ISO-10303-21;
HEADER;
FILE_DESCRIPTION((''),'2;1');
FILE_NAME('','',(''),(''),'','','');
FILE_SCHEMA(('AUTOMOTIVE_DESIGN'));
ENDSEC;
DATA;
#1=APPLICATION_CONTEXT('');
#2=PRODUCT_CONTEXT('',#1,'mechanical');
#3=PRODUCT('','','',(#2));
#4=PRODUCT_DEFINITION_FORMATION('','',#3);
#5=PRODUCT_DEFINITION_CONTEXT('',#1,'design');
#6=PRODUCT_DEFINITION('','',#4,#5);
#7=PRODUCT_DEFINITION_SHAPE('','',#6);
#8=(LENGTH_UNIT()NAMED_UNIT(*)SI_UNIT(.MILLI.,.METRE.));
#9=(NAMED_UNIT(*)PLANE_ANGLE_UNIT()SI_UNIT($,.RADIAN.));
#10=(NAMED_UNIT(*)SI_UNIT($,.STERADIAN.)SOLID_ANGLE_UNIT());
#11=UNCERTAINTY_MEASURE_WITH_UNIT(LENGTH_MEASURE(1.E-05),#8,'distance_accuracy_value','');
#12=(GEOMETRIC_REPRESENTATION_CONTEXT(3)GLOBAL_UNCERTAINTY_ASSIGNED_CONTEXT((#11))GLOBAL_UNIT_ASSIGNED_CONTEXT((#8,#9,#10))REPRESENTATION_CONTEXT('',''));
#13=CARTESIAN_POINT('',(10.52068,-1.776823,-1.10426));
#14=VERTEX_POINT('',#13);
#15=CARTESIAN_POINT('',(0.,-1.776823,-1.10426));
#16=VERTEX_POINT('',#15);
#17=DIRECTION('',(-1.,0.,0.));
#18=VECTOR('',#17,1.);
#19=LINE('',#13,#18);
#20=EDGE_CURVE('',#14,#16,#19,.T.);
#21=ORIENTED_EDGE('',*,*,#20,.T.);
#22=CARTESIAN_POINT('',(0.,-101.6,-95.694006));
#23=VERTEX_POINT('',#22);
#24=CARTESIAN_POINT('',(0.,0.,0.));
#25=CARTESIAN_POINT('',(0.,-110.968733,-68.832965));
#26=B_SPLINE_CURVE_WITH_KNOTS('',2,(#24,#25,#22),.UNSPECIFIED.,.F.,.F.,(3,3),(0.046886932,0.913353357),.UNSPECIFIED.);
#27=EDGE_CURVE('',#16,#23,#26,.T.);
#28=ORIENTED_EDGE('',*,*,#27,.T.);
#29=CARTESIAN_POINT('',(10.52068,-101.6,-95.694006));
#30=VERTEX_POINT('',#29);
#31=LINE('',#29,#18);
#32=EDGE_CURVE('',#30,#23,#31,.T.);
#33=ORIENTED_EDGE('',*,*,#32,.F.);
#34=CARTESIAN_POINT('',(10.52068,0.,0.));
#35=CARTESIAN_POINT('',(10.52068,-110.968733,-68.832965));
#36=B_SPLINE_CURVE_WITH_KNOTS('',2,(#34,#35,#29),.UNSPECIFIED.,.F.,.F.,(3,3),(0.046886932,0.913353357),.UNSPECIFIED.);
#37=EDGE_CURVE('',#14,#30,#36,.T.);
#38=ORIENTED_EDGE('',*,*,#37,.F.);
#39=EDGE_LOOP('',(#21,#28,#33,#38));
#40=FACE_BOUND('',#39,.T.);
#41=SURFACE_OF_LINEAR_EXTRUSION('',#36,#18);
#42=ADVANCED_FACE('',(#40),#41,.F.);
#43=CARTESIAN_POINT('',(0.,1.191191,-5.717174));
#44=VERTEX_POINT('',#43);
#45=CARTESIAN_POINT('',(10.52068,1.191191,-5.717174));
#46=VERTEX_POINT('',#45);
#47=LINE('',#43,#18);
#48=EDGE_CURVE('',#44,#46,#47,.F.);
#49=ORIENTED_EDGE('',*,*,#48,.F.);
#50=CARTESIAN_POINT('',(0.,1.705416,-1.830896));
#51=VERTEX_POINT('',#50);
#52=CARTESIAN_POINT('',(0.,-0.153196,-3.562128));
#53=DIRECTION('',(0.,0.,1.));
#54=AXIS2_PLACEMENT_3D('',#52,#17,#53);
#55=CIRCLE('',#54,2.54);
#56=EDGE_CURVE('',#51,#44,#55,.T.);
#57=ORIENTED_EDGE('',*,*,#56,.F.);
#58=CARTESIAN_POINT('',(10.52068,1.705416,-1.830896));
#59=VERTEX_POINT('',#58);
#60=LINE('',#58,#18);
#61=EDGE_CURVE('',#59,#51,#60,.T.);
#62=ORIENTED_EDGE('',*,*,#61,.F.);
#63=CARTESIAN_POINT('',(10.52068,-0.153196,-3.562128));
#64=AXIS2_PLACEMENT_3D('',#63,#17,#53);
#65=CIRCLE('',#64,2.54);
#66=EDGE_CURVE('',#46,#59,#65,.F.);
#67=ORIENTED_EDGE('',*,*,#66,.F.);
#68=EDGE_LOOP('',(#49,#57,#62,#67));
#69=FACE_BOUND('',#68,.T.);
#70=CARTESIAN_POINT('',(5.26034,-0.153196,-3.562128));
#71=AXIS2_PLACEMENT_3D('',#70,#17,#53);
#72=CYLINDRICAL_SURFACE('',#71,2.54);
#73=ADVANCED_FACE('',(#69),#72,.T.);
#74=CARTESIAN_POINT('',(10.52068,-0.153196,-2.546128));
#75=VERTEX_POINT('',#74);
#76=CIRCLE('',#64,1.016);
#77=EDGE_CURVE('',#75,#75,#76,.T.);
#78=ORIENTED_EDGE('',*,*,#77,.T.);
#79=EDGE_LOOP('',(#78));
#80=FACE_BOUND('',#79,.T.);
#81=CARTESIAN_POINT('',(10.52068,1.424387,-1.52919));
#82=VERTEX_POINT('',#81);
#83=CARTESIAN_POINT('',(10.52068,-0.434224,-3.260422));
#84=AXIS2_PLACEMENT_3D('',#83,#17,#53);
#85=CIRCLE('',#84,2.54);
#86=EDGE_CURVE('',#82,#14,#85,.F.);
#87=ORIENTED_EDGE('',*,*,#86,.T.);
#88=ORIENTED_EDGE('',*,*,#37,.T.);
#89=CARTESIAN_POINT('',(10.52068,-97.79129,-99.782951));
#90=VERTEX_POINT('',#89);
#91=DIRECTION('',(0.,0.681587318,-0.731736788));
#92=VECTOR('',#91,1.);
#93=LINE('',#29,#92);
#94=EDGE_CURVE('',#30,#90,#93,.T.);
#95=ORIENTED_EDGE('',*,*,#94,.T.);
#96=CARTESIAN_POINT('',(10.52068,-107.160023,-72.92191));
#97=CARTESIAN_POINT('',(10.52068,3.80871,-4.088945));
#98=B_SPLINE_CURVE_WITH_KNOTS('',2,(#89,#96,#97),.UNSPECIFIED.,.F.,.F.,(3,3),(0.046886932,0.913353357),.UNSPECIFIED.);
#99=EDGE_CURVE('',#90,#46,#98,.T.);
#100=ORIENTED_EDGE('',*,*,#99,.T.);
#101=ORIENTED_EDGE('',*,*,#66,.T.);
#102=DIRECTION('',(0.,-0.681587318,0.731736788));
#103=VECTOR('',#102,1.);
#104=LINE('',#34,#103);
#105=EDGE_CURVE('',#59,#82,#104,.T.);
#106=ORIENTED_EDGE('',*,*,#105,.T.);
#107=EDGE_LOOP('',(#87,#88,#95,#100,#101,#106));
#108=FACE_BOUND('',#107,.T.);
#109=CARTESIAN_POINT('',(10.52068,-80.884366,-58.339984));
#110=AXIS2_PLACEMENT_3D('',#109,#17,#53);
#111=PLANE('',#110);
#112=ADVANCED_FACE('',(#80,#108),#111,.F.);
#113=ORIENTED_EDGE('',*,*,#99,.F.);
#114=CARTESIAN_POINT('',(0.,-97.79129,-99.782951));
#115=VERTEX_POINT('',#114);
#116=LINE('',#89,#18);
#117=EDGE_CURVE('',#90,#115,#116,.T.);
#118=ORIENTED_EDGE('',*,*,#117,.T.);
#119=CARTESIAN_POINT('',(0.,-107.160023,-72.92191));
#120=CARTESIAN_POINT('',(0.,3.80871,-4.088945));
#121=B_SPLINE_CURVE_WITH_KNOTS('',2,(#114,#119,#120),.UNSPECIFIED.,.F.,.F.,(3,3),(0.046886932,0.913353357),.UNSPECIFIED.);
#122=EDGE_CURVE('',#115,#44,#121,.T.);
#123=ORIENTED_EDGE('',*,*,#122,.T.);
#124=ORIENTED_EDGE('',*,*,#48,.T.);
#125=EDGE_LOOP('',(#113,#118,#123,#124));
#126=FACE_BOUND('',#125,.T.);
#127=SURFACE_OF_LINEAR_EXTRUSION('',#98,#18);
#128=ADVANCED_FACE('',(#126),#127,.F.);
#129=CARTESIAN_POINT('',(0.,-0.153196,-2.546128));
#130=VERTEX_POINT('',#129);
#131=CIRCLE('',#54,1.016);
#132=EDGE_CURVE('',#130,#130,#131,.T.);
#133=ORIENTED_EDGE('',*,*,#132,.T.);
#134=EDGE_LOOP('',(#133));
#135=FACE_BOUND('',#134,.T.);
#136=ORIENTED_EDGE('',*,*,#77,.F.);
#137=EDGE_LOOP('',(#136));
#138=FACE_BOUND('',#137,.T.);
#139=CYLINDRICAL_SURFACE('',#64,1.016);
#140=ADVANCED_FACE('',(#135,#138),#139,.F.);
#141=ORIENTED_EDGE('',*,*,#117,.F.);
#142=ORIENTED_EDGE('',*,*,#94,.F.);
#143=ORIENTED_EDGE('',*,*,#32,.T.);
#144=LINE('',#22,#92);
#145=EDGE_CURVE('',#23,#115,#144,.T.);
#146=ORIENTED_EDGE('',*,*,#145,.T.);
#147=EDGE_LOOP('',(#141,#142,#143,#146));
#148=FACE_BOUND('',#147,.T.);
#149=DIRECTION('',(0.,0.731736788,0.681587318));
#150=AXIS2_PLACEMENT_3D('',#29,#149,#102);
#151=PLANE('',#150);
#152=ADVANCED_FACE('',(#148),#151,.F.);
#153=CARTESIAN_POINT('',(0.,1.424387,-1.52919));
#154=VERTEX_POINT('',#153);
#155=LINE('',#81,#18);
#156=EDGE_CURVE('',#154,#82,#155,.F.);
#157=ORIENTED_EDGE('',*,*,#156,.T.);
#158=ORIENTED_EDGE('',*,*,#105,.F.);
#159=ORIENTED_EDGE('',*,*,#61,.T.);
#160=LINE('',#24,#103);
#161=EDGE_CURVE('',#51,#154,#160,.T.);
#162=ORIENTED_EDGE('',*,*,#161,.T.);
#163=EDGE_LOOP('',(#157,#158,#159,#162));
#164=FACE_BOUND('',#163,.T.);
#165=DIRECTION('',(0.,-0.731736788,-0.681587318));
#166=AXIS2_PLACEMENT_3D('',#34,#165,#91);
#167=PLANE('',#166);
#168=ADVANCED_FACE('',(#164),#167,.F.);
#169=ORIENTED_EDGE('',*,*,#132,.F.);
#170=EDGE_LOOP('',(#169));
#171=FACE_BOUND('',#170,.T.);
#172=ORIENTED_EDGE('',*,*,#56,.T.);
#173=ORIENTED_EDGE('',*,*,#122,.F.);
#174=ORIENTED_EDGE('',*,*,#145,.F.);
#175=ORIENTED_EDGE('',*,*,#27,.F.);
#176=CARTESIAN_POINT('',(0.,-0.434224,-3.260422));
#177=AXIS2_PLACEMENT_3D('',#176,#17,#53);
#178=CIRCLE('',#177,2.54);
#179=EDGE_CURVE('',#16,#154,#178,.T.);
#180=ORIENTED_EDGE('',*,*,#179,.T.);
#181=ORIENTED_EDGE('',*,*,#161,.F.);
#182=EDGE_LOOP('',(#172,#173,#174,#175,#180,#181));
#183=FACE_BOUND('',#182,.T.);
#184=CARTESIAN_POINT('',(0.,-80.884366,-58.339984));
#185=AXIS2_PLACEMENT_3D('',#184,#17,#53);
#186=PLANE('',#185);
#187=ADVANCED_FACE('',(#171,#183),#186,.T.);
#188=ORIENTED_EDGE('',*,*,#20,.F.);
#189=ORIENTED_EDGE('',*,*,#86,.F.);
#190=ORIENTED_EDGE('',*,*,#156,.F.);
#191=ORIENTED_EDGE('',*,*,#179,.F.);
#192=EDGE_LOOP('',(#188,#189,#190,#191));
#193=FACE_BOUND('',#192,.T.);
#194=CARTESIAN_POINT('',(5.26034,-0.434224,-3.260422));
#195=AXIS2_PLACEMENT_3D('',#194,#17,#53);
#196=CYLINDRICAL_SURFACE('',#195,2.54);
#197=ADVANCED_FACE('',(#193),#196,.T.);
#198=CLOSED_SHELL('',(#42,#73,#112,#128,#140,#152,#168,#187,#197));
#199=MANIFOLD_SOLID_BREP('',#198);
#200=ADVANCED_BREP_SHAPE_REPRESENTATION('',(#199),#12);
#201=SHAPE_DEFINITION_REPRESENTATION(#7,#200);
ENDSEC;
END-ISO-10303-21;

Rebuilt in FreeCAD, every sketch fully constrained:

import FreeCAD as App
import Part
import Sketcher

V = App.Vector
Q = App.Units.Quantity


def edges_at(feature, points):
    """Names of the edges that pass closest to the given points."""
    edges = feature.Shape.Edges
    near = lambda p: min(range(len(edges)), key=lambda i: edges[i].distToShape(Part.Vertex(*p))[0])
    return sorted({f"Edge{near(p) + 1}" for p in points})

doc = App.newDocument("Part")
body = doc.addObject("PartDesign::Body", "Body")

sketch1 = doc.addObject("Sketcher::SketchObject", "Sketch")
body.addObject(sketch1)
sketch1.AttachmentSupport = (doc.YZ_Plane, [""])
sketch1.MapMode = "FlatFace"
sketch1.addGeometry([
    Part.LineSegment(V(3.80871, -4.088945, 0), V(0, 0, 0)),
    Part.BSplineCurve([V(0, 0, 0), V(-110.968733, -68.832965, 0), V(-101.6, -95.694006, 0)], [3, 3], [0.046886932, 0.913353357], False, 2, [1, 1, 1], False),
    Part.LineSegment(V(-101.6, -95.694006, 0), V(-97.79129, -99.782951, 0)),
    Part.BSplineCurve([V(3.80871, -4.088945, 0), V(-107.160023, -72.92191, 0), V(-97.79129, -99.782951, 0)], [3, 3], [0.046886932, 0.913353357], False, 2, [1, 1, 1], False),
], False)
sketch1.addConstraint([
    Sketcher.Constraint("Block", 1),
    Sketcher.Constraint("Block", 3),
    Sketcher.Constraint("Coincident", 0, 2, 1, 1),
    Sketcher.Constraint("Coincident", 1, 2, 2, 1),
    Sketcher.Constraint("Coincident", 2, 2, 3, 2),
    Sketcher.Constraint("Coincident", 3, 1, 0, 1),
])
pad1 = doc.addObject("PartDesign::Pad", "Pad")
body.addObject(pad1)
pad1.Profile = sketch1
pad1.Length = Q("0.4142 in")
doc.recompute()

fillet = doc.addObject("PartDesign::Fillet", "Fillet")
body.addObject(fillet)
fillet.Base = (pad1, edges_at(pad1, [(5.26, 0, 0), (5.26, 3.809, -4.089)]))
fillet.Radius = Q("0.1 in")

sketch2 = doc.addObject("Sketcher::SketchObject", "Sketch001")
body.addObject(sketch2)
sketch2.AttachmentSupport = (doc.YZ_Plane, [""])
sketch2.MapMode = "FlatFace"
sketch2.addGeometry(Part.Circle(V(-0.2, -3.6, 0), V(0, 0, 1), 1), False)
sketch2.addConstraint([
    Sketcher.Constraint("Diameter", 0, Q("0.08 in")),
    Sketcher.Constraint("DistanceX", 0, 3, -1, 1, 0.153196),
    Sketcher.Constraint("DistanceY", 0, 3, -1, 1, 3.562128),
])
pocket1 = doc.addObject("PartDesign::Pocket", "Pocket")
body.addObject(pocket1)
pocket1.Profile = sketch2
pocket1.Length = Q("0.4142 in")
pocket1.Reversed = True

doc.recompute()
